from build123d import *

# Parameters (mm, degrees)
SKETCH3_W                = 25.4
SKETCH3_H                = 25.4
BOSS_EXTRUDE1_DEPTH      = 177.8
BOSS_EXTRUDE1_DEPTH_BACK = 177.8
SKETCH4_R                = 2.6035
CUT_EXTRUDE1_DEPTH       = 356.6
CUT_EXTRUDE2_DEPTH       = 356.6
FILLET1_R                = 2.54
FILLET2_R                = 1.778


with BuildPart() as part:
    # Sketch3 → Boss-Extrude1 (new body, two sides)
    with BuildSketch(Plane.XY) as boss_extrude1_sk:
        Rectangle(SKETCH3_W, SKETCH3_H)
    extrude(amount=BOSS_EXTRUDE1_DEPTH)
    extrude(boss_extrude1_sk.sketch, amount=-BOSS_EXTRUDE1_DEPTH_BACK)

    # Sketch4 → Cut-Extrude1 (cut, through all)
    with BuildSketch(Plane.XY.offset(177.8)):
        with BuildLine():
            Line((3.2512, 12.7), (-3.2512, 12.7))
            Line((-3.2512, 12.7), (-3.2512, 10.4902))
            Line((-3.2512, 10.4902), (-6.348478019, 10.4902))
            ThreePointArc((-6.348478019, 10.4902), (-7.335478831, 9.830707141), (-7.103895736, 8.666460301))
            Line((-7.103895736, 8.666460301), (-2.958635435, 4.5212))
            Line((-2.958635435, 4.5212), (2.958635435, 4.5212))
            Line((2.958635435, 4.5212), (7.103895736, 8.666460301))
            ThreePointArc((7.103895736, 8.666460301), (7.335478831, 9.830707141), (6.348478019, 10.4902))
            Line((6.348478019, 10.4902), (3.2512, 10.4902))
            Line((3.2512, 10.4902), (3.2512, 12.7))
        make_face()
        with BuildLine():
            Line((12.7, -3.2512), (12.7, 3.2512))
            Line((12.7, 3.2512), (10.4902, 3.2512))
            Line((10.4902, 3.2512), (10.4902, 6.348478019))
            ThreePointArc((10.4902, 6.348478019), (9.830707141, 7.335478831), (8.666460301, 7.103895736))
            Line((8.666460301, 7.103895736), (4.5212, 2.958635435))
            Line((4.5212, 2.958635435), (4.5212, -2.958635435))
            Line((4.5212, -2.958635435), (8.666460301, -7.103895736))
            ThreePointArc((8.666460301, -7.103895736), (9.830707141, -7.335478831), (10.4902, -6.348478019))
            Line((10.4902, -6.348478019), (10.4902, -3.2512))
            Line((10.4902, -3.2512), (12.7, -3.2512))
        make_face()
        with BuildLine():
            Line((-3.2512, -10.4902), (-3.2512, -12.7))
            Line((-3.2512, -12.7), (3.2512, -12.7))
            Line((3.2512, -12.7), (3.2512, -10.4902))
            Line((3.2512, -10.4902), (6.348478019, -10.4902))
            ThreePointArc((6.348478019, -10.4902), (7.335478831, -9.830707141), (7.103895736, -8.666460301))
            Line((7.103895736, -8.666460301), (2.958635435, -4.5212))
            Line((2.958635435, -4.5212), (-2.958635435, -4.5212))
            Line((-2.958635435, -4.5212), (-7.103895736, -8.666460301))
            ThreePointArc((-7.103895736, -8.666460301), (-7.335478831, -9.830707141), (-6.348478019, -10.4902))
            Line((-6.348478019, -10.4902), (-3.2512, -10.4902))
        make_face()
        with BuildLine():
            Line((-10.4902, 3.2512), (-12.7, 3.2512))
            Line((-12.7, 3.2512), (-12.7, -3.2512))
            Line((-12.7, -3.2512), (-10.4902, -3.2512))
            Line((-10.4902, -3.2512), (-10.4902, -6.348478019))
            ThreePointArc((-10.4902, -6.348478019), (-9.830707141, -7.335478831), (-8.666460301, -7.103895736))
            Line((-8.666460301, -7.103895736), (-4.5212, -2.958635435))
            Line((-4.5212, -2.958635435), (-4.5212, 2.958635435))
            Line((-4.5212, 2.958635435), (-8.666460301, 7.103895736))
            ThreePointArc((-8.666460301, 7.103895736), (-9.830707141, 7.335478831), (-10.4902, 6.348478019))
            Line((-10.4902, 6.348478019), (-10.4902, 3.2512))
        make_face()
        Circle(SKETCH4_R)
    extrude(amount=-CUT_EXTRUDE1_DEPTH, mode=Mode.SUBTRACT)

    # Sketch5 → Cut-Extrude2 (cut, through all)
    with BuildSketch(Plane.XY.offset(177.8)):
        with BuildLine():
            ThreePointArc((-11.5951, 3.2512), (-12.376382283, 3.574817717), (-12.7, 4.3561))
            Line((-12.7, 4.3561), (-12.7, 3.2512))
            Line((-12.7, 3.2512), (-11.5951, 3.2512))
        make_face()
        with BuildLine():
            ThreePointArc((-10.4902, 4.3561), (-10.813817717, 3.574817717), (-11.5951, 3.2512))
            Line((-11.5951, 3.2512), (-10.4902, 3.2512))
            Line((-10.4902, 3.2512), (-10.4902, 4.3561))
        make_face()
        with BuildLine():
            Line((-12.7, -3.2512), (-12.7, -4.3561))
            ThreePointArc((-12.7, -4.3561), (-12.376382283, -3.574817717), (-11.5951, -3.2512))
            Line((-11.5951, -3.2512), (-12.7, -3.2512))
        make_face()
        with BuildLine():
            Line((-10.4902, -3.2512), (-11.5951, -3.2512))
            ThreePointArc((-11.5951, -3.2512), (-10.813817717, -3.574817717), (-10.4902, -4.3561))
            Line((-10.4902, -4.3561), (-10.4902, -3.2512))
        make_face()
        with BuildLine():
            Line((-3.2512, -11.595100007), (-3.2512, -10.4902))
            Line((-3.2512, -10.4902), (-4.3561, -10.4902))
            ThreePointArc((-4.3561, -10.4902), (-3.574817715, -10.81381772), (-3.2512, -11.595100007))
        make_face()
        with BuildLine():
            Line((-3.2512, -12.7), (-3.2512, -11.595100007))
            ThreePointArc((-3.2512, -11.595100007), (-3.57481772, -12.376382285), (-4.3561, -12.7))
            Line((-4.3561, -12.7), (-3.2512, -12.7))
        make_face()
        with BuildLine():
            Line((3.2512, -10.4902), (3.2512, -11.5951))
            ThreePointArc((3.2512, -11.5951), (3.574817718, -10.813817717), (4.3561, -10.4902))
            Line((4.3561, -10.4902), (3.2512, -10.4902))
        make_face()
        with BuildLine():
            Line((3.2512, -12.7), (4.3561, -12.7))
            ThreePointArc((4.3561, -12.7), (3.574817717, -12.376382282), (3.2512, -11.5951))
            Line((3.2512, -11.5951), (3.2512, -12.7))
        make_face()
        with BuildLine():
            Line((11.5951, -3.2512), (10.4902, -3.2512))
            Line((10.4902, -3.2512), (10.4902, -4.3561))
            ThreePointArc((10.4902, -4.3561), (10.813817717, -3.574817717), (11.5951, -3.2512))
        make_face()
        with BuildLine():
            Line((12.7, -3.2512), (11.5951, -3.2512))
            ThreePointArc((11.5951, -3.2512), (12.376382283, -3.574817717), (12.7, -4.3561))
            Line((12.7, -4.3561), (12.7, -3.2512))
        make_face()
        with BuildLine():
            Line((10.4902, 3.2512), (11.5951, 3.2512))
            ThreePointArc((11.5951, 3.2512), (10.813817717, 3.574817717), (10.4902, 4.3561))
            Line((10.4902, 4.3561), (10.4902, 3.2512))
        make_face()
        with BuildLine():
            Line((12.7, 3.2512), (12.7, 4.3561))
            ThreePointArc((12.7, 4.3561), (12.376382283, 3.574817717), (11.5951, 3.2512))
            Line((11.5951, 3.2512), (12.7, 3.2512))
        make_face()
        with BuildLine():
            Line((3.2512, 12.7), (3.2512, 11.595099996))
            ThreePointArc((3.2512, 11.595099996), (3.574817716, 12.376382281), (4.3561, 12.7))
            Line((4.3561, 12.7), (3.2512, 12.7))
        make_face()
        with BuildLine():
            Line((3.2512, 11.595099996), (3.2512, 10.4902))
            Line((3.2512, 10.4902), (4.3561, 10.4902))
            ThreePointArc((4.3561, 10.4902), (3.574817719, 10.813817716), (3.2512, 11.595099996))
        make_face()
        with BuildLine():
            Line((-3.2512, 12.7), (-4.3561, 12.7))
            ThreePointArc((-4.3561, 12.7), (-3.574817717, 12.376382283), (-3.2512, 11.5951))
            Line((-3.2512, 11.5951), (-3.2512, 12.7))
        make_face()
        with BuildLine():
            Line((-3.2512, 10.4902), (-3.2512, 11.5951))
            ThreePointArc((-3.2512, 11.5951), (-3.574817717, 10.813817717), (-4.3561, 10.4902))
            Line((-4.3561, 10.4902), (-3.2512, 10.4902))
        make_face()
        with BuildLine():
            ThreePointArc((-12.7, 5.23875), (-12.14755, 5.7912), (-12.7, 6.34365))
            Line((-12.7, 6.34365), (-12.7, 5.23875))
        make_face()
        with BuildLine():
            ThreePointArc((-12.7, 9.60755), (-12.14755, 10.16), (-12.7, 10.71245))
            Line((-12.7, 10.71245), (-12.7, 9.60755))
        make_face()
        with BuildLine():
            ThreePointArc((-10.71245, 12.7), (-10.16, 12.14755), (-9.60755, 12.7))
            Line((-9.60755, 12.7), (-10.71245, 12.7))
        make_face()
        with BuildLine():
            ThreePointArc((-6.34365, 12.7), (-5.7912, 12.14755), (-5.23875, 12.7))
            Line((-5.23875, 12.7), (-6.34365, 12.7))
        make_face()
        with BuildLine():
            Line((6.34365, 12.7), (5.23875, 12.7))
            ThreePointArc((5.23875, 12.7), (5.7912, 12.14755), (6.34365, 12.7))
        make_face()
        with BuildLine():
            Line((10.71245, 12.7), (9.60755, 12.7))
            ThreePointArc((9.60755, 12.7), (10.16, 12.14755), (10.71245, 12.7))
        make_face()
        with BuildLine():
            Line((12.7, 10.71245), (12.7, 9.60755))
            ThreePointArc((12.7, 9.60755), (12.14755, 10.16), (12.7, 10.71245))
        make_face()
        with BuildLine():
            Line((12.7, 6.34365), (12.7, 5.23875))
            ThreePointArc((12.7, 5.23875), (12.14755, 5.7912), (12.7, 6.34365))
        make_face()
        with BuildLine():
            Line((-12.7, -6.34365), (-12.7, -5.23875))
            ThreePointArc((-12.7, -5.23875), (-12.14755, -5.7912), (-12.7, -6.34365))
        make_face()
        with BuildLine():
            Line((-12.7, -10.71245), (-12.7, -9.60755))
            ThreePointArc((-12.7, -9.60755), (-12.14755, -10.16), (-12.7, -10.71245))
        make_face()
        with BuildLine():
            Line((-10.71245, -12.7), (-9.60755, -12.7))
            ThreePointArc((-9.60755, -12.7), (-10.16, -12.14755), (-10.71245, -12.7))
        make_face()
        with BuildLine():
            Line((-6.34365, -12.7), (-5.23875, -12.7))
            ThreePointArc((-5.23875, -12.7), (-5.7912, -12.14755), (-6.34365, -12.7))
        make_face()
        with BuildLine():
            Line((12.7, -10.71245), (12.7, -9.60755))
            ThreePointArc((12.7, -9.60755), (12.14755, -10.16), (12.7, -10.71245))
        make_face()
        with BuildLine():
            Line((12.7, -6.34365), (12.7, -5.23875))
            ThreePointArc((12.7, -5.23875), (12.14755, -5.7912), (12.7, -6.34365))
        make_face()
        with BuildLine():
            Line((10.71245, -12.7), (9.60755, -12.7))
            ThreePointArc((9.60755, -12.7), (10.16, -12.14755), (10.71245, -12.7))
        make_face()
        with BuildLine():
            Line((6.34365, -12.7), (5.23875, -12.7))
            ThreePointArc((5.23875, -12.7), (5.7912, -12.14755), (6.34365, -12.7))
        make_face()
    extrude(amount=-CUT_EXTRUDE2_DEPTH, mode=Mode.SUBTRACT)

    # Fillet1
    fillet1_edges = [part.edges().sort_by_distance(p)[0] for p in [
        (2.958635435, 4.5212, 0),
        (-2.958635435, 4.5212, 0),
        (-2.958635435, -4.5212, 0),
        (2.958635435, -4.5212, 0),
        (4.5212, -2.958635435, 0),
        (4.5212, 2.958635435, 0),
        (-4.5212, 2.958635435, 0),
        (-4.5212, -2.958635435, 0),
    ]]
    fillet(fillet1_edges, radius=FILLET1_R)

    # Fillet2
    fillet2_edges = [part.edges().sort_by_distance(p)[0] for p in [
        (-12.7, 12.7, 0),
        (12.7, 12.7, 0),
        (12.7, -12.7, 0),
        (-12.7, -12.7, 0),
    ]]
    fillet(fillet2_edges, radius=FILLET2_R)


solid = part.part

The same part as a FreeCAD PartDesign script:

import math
import FreeCAD as App
import Part
import Sketcher
Q = App.Units.Quantity


def edges_at(feature, points):
    """Names of the edges that pass closest to the given points."""
    edges = feature.Shape.Edges
    near = lambda p: min(range(len(edges)), key=lambda i: edges[i].distToShape(Part.Vertex(*p))[0])
    return sorted({f"Edge{near(p) + 1}" for p in points})


def add_polygon(sketch, points):
    """Adds a closed chain of lines whose ends are joined by coincident constraints."""
    first, n = sketch.GeometryCount, len(points)
    for a, b in zip(points, points[1:] + points[:1]):
        sketch.addGeometry(Part.LineSegment(App.Vector(*a, 0), App.Vector(*b, 0)), False)
    for i in range(n):
        sketch.addConstraint(Sketcher.Constraint("Coincident", first + i, 2, first + (i + 1) % n, 1))

doc = App.newDocument("Part")
body = doc.addObject("PartDesign::Body", "Body")

# Sketch on XY plane
sketch1 = body.newObject("Sketcher::SketchObject", "Sketch")
sketch1.AttachmentSupport = (doc.getObject("XY_Plane"), [""])
sketch1.MapMode = "FlatFace"
add_polygon(sketch1, [(-13, 13), (-13, -13), (13, -13), (13, 13)])  # lines 0-3
sketch1.addConstraint(Sketcher.Constraint("Vertical", 0))
sketch1.addConstraint(Sketcher.Constraint("Horizontal", 1))
sketch1.addConstraint(Sketcher.Constraint("Vertical", 2))
sketch1.addConstraint(Sketcher.Constraint("Horizontal", 3))
sketch1.addConstraint(Sketcher.Constraint("Symmetric", 0, 2, 2, 2, -1, 1))
sketch1.addConstraint(Sketcher.Constraint("Equal", 3, 0))
sketch1.addConstraint(Sketcher.Constraint("DistanceX", 1, 1, 1, 2, Q("1 in")))
pad1 = body.newObject("PartDesign::Pad", "Pad")
pad1.Profile = sketch1
pad1.Type = "TwoLengths"
pad1.Length = Q("7 in")
pad1.Length2 = Q("7 in")

# Sketch on XY plane
sketch2 = body.newObject("Sketcher::SketchObject", "Sketch001")
sketch2.AttachmentSupport = (doc.getObject("XY_Plane"), [""])
sketch2.MapMode = "FlatFace"
sketch2.AttachmentOffset = App.Placement(App.Vector(0, 0, 7 * 25.4), App.Rotation())
sketch2.addGeometry(Part.LineSegment(App.Vector(3.3, 12.7, 0), App.Vector(-3.3, 12.7, 0)), False)
sketch2.addGeometry(Part.LineSegment(App.Vector(-3.3, 12.7, 0), App.Vector(-3.3, 10.5, 0)), False)
sketch2.addGeometry(Part.LineSegment(App.Vector(-3.3, 10.5, 0), App.Vector(-6.3, 10.5, 0)), False)
sketch2.addGeometry(Part.ArcOfCircle(Part.Circle(App.Vector(-6.3, 9.4, 0), App.Vector(0, 0, 1), 1.1), math.radians(90), math.radians(225)), False)
sketch2.addGeometry(Part.LineSegment(App.Vector(-7.1, 8.7, 0), App.Vector(-3, 4.5, 0)), False)
sketch2.addGeometry(Part.LineSegment(App.Vector(-3, 4.5, 0), App.Vector(3, 4.5, 0)), False)
sketch2.addGeometry(Part.LineSegment(App.Vector(3, 4.5, 0), App.Vector(7.1, 8.7, 0)), False)
sketch2.addGeometry(Part.ArcOfCircle(Part.Circle(App.Vector(6.3, 9.4, 0), App.Vector(0, 0, 1), 1.1), math.radians(-45), math.radians(90)), False)
sketch2.addGeometry(Part.LineSegment(App.Vector(6.3, 10.5, 0), App.Vector(3.3, 10.5, 0)), False)
sketch2.addGeometry(Part.LineSegment(App.Vector(3.3, 10.5, 0), App.Vector(3.3, 12.7, 0)), False)
sketch2.addGeometry(Part.LineSegment(App.Vector(12.7, -3.3, 0), App.Vector(12.7, 3.3, 0)), False)
sketch2.addGeometry(Part.LineSegment(App.Vector(12.7, 3.3, 0), App.Vector(10.5, 3.3, 0)), False)
sketch2.addGeometry(Part.LineSegment(App.Vector(10.5, 3.3, 0), App.Vector(10.5, 6.3, 0)), False)
sketch2.addGeometry(Part.ArcOfCircle(Part.Circle(App.Vector(9.4, 6.3, 0), App.Vector(0, 0, 1), 1.1), math.radians(0), math.radians(135)), False)
sketch2.addGeometry(Part.LineSegment(App.Vector(8.7, 7.1, 0), App.Vector(4.5, 3, 0)), False)
sketch2.addGeometry(Part.LineSegment(App.Vector(4.5, 3, 0), App.Vector(4.5, -3, 0)), False)
sketch2.addGeometry(Part.LineSegment(App.Vector(4.5, -3, 0), App.Vector(8.7, -7.1, 0)), False)
sketch2.addGeometry(Part.ArcOfCircle(Part.Circle(App.Vector(9.4, -6.3, 0), App.Vector(0, 0, 1), 1.1), math.radians(-135), math.radians(0)), False)
sketch2.addGeometry(Part.LineSegment(App.Vector(10.5, -6.3, 0), App.Vector(10.5, -3.3, 0)), False)
sketch2.addGeometry(Part.LineSegment(App.Vector(10.5, -3.3, 0), App.Vector(12.7, -3.3, 0)), False)
sketch2.addGeometry(Part.LineSegment(App.Vector(-3.3, -10.5, 0), App.Vector(-3.3, -12.7, 0)), False)
sketch2.addGeometry(Part.LineSegment(App.Vector(-3.3, -12.7, 0), App.Vector(3.3, -12.7, 0)), False)
sketch2.addGeometry(Part.LineSegment(App.Vector(3.3, -12.7, 0), App.Vector(3.3, -10.5, 0)), False)
sketch2.addGeometry(Part.LineSegment(App.Vector(3.3, -10.5, 0), App.Vector(6.3, -10.5, 0)), False)
sketch2.addGeometry(Part.ArcOfCircle(Part.Circle(App.Vector(6.3, -9.4, 0), App.Vector(0, 0, 1), 1.1), math.radians(-90), math.radians(45)), False)
sketch2.addGeometry(Part.LineSegment(App.Vector(7.1, -8.7, 0), App.Vector(3, -4.5, 0)), False)
sketch2.addGeometry(Part.LineSegment(App.Vector(3, -4.5, 0), App.Vector(-3, -4.5, 0)), False)
sketch2.addGeometry(Part.LineSegment(App.Vector(-3, -4.5, 0), App.Vector(-7.1, -8.7, 0)), False)
sketch2.addGeometry(Part.ArcOfCircle(Part.Circle(App.Vector(-6.3, -9.4, 0), App.Vector(0, 0, 1), 1.1), math.radians(135), math.radians(270)), False)
sketch2.addGeometry(Part.LineSegment(App.Vector(-6.3, -10.5, 0), App.Vector(-3.3, -10.5, 0)), False)
sketch2.addGeometry(Part.LineSegment(App.Vector(-10.5, 3.3, 0), App.Vector(-12.7, 3.3, 0)), False)
sketch2.addGeometry(Part.LineSegment(App.Vector(-12.7, 3.3, 0), App.Vector(-12.7, -3.3, 0)), False)
sketch2.addGeometry(Part.LineSegment(App.Vector(-12.7, -3.3, 0), App.Vector(-10.5, -3.3, 0)), False)
sketch2.addGeometry(Part.LineSegment(App.Vector(-10.5, -3.3, 0), App.Vector(-10.5, -6.3, 0)), False)
sketch2.addGeometry(Part.ArcOfCircle(Part.Circle(App.Vector(-9.4, -6.3, 0), App.Vector(0, 0, 1), 1.1), math.radians(-180), math.radians(-45)), False)
sketch2.addGeometry(Part.LineSegment(App.Vector(-8.7, -7.1, 0), App.Vector(-4.5, -3, 0)), False)
sketch2.addGeometry(Part.LineSegment(App.Vector(-4.5, -3, 0), App.Vector(-4.5, 3, 0)), False)
sketch2.addGeometry(Part.LineSegment(App.Vector(-4.5, 3, 0), App.Vector(-8.7, 7.1, 0)), False)
sketch2.addGeometry(Part.ArcOfCircle(Part.Circle(App.Vector(-9.4, 6.3, 0), App.Vector(0, 0, 1), 1.1), math.radians(45), math.radians(180)), False)
sketch2.addGeometry(Part.LineSegment(App.Vector(-10.5, 6.3, 0), App.Vector(-10.5, 3.3, 0)), False)
sketch2.addGeometry(Part.Circle(App.Vector(0, 0, 0), App.Vector(0, 0, 1), 2.6), False)
sketch2.addConstraint(Sketcher.Constraint("Coincident", 0, 2, 1, 1))
sketch2.addConstraint(Sketcher.Constraint("Coincident", 1, 2, 2, 1))
sketch2.addConstraint(Sketcher.Constraint("Tangent", 2, 2, 3, 1))
sketch2.addConstraint(Sketcher.Constraint("Tangent", 3, 2, 4, 1))
sketch2.addConstraint(Sketcher.Constraint("Coincident", 4, 2, 5, 1))
sketch2.addConstraint(Sketcher.Constraint("Coincident", 5, 2, 6, 1))
sketch2.addConstraint(Sketcher.Constraint("Tangent", 6, 2, 7, 1))
sketch2.addConstraint(Sketcher.Constraint("Tangent", 7, 2, 8, 1))
sketch2.addConstraint(Sketcher.Constraint("Coincident", 8, 2, 9, 1))
sketch2.addConstraint(Sketcher.Constraint("Coincident", 9, 2, 0, 1))
sketch2.addConstraint(Sketcher.Constraint("Coincident", 10, 2, 11, 1))
sketch2.addConstraint(Sketcher.Constraint("Coincident", 11, 2, 12, 1))
sketch2.addConstraint(Sketcher.Constraint("Tangent", 12, 2, 13, 1))
sketch2.addConstraint(Sketcher.Constraint("Tangent", 13, 2, 14, 1))
sketch2.addConstraint(Sketcher.Constraint("Coincident", 14, 2, 15, 1))
sketch2.addConstraint(Sketcher.Constraint("Coincident", 15, 2, 16, 1))
sketch2.addConstraint(Sketcher.Constraint("Tangent", 16, 2, 17, 1))
sketch2.addConstraint(Sketcher.Constraint("Tangent", 17, 2, 18, 1))
sketch2.addConstraint(Sketcher.Constraint("Coincident", 18, 2, 19, 1))
sketch2.addConstraint(Sketcher.Constraint("Coincident", 19, 2, 10, 1))
sketch2.addConstraint(Sketcher.Constraint("Coincident", 20, 2, 21, 1))
sketch2.addConstraint(Sketcher.Constraint("Coincident", 21, 2, 22, 1))
sketch2.addConstraint(Sketcher.Constraint("Coincident", 22, 2, 23, 1))
sketch2.addConstraint(Sketcher.Constraint("Tangent", 23, 2, 24, 1))
sketch2.addConstraint(Sketcher.Constraint("Tangent", 24, 2, 25, 1))
sketch2.addConstraint(Sketcher.Constraint("Coincident", 25, 2, 26, 1))
sketch2.addConstraint(Sketcher.Constraint("Coincident", 26, 2, 27, 1))
sketch2.addConstraint(Sketcher.Constraint("Tangent", 27, 2, 28, 1))
sketch2.addConstraint(Sketcher.Constraint("Tangent", 28, 2, 29, 1))
sketch2.addConstraint(Sketcher.Constraint("Coincident", 29, 2, 20, 1))
sketch2.addConstraint(Sketcher.Constraint("Coincident", 30, 2, 31, 1))
sketch2.addConstraint(Sketcher.Constraint("Coincident", 31, 2, 32, 1))
sketch2.addConstraint(Sketcher.Constraint("Coincident", 32, 2, 33, 1))
sketch2.addConstraint(Sketcher.Constraint("Tangent", 33, 2, 34, 1))
sketch2.addConstraint(Sketcher.Constraint("Tangent", 34, 2, 35, 1))
sketch2.addConstraint(Sketcher.Constraint("Coincident", 35, 2, 36, 1))
sketch2.addConstraint(Sketcher.Constraint("Coincident", 36, 2, 37, 1))
sketch2.addConstraint(Sketcher.Constraint("Tangent", 37, 2, 38, 1))
sketch2.addConstraint(Sketcher.Constraint("Tangent", 38, 2, 39, 1))
sketch2.addConstraint(Sketcher.Constraint("Coincident", 39, 2, 30, 1))
sketch2.addConstraint(Sketcher.Constraint("Horizontal", 0))
sketch2.addConstraint(Sketcher.Constraint("Vertical", 1))
sketch2.addConstraint(Sketcher.Constraint("Horizontal", 2))
sketch2.addConstraint(Sketcher.Constraint("Horizontal", 5))
sketch2.addConstraint(Sketcher.Constraint("Horizontal", 8))
sketch2.addConstraint(Sketcher.Constraint("Vertical", 9))
sketch2.addConstraint(Sketcher.Constraint("Vertical", 10))
sketch2.addConstraint(Sketcher.Constraint("Horizontal", 11))
sketch2.addConstraint(Sketcher.Constraint("Vertical", 12))
sketch2.addConstraint(Sketcher.Constraint("Vertical", 15))
sketch2.addConstraint(Sketcher.Constraint("Vertical", 18))
sketch2.addConstraint(Sketcher.Constraint("Horizontal", 19))
sketch2.addConstraint(Sketcher.Constraint("Vertical", 20))
sketch2.addConstraint(Sketcher.Constraint("Horizontal", 21))
sketch2.addConstraint(Sketcher.Constraint("Vertical", 22))
sketch2.addConstraint(Sketcher.Constraint("Horizontal", 23))
sketch2.addConstraint(Sketcher.Constraint("Horizontal", 26))
sketch2.addConstraint(Sketcher.Constraint("Horizontal", 29))
sketch2.addConstraint(Sketcher.Constraint("Horizontal", 30))
sketch2.addConstraint(Sketcher.Constraint("Vertical", 31))
sketch2.addConstraint(Sketcher.Constraint("Horizontal", 32))
sketch2.addConstraint(Sketcher.Constraint("Vertical", 33))
sketch2.addConstraint(Sketcher.Constraint("Vertical", 36))
sketch2.addConstraint(Sketcher.Constraint("Vertical", 39))
sketch2.addConstraint(Sketcher.Constraint("Coincident", 40, 3, -1, 1))
sketch2.addConstraint(Sketcher.Constraint("Equal", 3, 7))
sketch2.addConstraint(Sketcher.Constraint("Equal", 7, 13))
sketch2.addConstraint(Sketcher.Constraint("Equal", 13, 17))
sketch2.addConstraint(Sketcher.Constraint("Equal", 17, 24))
sketch2.addConstraint(Sketcher.Constraint("Equal", 24, 28))
sketch2.addConstraint(Sketcher.Constraint("Equal", 28, 34))
sketch2.addConstraint(Sketcher.Constraint("Equal", 34, 38))
sketch2.addConstraint(Sketcher.Constraint("Symmetric", 3, 3, 24, 3, -1, 1))
sketch2.addConstraint(Sketcher.Constraint("Symmetric", 7, 3, 28, 3, -1, 1))
sketch2.addConstraint(Sketcher.Constraint("Symmetric", 13, 3, 34, 3, -1, 1))
sketch2.addConstraint(Sketcher.Constraint("Symmetric", 17, 3, 38, 3, -1, 1))
sketch2.addConstraint(Sketcher.Constraint("Symmetric", 9, 2, 20, 2, -1, 1))
sketch2.addConstraint(Sketcher.Constraint("Symmetric", 4, 2, 25, 2, -1, 1))
sketch2.addConstraint(Sketcher.Constraint("Symmetric", 19, 2, 30, 2, -1, 1))
sketch2.addConstraint(Sketcher.Constraint("Symmetric", 14, 2, 35, 2, -1, 1))
sketch2.addConstraint(Sketcher.Constraint("Symmetric", 3, 3, 7, 3, -2))
sketch2.addConstraint(Sketcher.Constraint("Symmetric", 17, 3, 34, 3, -2))
sketch2.addConstraint(Sketcher.Constraint("Perpendicular", 4, 6))
sketch2.addConstraint(Sketcher.Constraint("Parallel", 6, 14))
sketch2.addConstraint(Sketcher.Constraint("Perpendicular", 14, 16))
sketch2.addConstraint(Sketcher.Constraint("Perpendicular", 25, 27))
sketch2.addConstraint(Sketcher.Constraint("Perpendicular", 35, 37))
sketch2.addConstraint(Sketcher.Constraint("Horizontal", 3, 2, 6, 2))
sketch2.addConstraint(Sketcher.Constraint("Horizontal", 11, 2, 30, 2))
sketch2.addConstraint(Sketcher.Constraint("Horizontal", 19, 2, 31, 2))
sketch2.addConstraint(Sketcher.Constraint("Vertical", 1, 2, 20, 2))
sketch2.addConstraint(Sketcher.Constraint("Vertical", 9, 2, 21, 2))
sketch2.addConstraint(Sketcher.Constraint("Equal", 32, 1))
sketch2.addConstraint(Sketcher.Constraint("Equal", 21, 10))
sketch2.addConstraint(Sketcher.Constraint("Equal", 29, 12))
sketch2.addConstraint(Sketcher.Constraint("Equal", 26, 15))
sketch2.addConstraint(Sketcher.Constraint("Diameter", 40, Q("0.205 in")))
sketch2.addConstraint(Sketcher.Constraint("DistanceY", -1, 1, 0, 2, Q("0.5 in")))
sketch2.addConstraint(Sketcher.Constraint("DistanceX", -1, 1, 10, 2, Q("0.5 in")))
sketch2.addConstraint(Sketcher.Constraint("DistanceX", 0, 2, 0, 1, Q("0.256 in")))
sketch2.addConstraint(Sketcher.Constraint("DistanceX", 11, 2, 11, 1, Q("0.087 in")))
sketch2.addConstraint(Sketcher.Constraint("DistanceY", 10, 2, 5, 2, Q("0.05 in")))
sketch2.addConstraint(Sketcher.Constraint("Radius", 3, 1.068322))
sketch2.addConstraint(Sketcher.Constraint("DistanceX", 7, 3, 13, 3, Q("0.121 in")))
pocket1 = body.newObject("PartDesign::Pocket", "Pocket")
pocket1.Profile = sketch2
pocket1.Type = "ThroughAll"

# Sketch on XY plane
sketch3 = body.newObject("Sketcher::SketchObject", "Sketch002")
sketch3.AttachmentSupport = (doc.getObject("XY_Plane"), [""])
sketch3.MapMode = "FlatFace"
sketch3.AttachmentOffset = App.Placement(App.Vector(0, 0, 7 * 25.4), App.Rotation())
sketch3.addGeometry(Part.ArcOfCircle(Part.Circle(App.Vector(-11.6, 4.4, 0), App.Vector(0, 0, 1), 1.1), math.radians(180), math.radians(270)), False)
sketch3.addGeometry(Part.LineSegment(App.Vector(-12.7, 4.4, 0), App.Vector(-12.7, 3.3, 0)), False)
sketch3.addGeometry(Part.LineSegment(App.Vector(-12.7, 3.3, 0), App.Vector(-11.6, 3.3, 0)), False)
sketch3.addGeometry(Part.ArcOfCircle(Part.Circle(App.Vector(-11.6, 4.4, 0), App.Vector(0, 0, 1), 1.1), math.radians(-90), math.radians(0)), False)
sketch3.addGeometry(Part.LineSegment(App.Vector(-11.6, 3.3, 0), App.Vector(-10.5, 3.3, 0)), False)
sketch3.addGeometry(Part.LineSegment(App.Vector(-10.5, 3.3, 0), App.Vector(-10.5, 4.4, 0)), False)
sketch3.addGeometry(Part.LineSegment(App.Vector(-12.7, -3.3, 0), App.Vector(-12.7, -4.4, 0)), False)
sketch3.addGeometry(Part.ArcOfCircle(Part.Circle(App.Vector(-11.6, -4.4, 0), App.Vector(0, 0, 1), 1.1), math.radians(90), math.radians(180)), False)
sketch3.addGeometry(Part.LineSegment(App.Vector(-11.6, -3.3, 0), App.Vector(-12.7, -3.3, 0)), False)
sketch3.addGeometry(Part.LineSegment(App.Vector(-10.5, -3.3, 0), App.Vector(-11.6, -3.3, 0)), False)
sketch3.addGeometry(Part.ArcOfCircle(Part.Circle(App.Vector(-11.6, -4.4, 0), App.Vector(0, 0, 1), 1.1), math.radians(0), math.radians(90)), False)
sketch3.addGeometry(Part.LineSegment(App.Vector(-10.5, -4.4, 0), App.Vector(-10.5, -3.3, 0)), False)
sketch3.addGeometry(Part.LineSegment(App.Vector(-3.3, -11.6, 0), App.Vector(-3.3, -10.5, 0)), False)
sketch3.addGeometry(Part.LineSegment(App.Vector(-3.3, -10.5, 0), App.Vector(-4.4, -10.5, 0)), False)
sketch3.addGeometry(Part.ArcOfCircle(Part.Circle(App.Vector(-4.4, -11.6, 0), App.Vector(0, 0, 1), 1.1), math.radians(0), math.radians(90)), False)
sketch3.addGeometry(Part.LineSegment(App.Vector(-3.3, -12.7, 0), App.Vector(-3.3, -11.6, 0)), False)
sketch3.addGeometry(Part.ArcOfCircle(Part.Circle(App.Vector(-4.4, -11.6, 0), App.Vector(0, 0, 1), 1.1), math.radians(-90), math.radians(0)), False)
sketch3.addGeometry(Part.LineSegment(App.Vector(-4.4, -12.7, 0), App.Vector(-3.3, -12.7, 0)), False)
sketch3.addGeometry(Part.LineSegment(App.Vector(3.3, -10.5, 0), App.Vector(3.3, -11.6, 0)), False)
sketch3.addGeometry(Part.ArcOfCircle(Part.Circle(App.Vector(4.4, -11.6, 0), App.Vector(0, 0, 1), 1.1), math.radians(90), math.radians(180)), False)
sketch3.addGeometry(Part.LineSegment(App.Vector(4.4, -10.5, 0), App.Vector(3.3, -10.5, 0)), False)
sketch3.addGeometry(Part.LineSegment(App.Vector(3.3, -12.7, 0), App.Vector(4.4, -12.7, 0)), False)
sketch3.addGeometry(Part.ArcOfCircle(Part.Circle(App.Vector(4.4, -11.6, 0), App.Vector(0, 0, 1), 1.1), math.radians(180), math.radians(270)), False)
sketch3.addGeometry(Part.LineSegment(App.Vector(3.3, -11.6, 0), App.Vector(3.3, -12.7, 0)), False)
sketch3.addGeometry(Part.LineSegment(App.Vector(11.6, -3.3, 0), App.Vector(10.5, -3.3, 0)), False)
sketch3.addGeometry(Part.LineSegment(App.Vector(10.5, -3.3, 0), App.Vector(10.5, -4.4, 0)), False)
sketch3.addGeometry(Part.ArcOfCircle(Part.Circle(App.Vector(11.6, -4.4, 0), App.Vector(0, 0, 1), 1.1), math.radians(90), math.radians(180)), False)
sketch3.addGeometry(Part.LineSegment(App.Vector(12.7, -3.3, 0), App.Vector(11.6, -3.3, 0)), False)
sketch3.addGeometry(Part.ArcOfCircle(Part.Circle(App.Vector(11.6, -4.4, 0), App.Vector(0, 0, 1), 1.1), math.radians(0), math.radians(90)), False)
sketch3.addGeometry(Part.LineSegment(App.Vector(12.7, -4.4, 0), App.Vector(12.7, -3.3, 0)), False)
sketch3.addGeometry(Part.LineSegment(App.Vector(10.5, 3.3, 0), App.Vector(11.6, 3.3, 0)), False)
sketch3.addGeometry(Part.ArcOfCircle(Part.Circle(App.Vector(11.6, 4.4, 0), App.Vector(0, 0, 1), 1.1), math.radians(180), math.radians(270)), False)
sketch3.addGeometry(Part.LineSegment(App.Vector(10.5, 4.4, 0), App.Vector(10.5, 3.3, 0)), False)
sketch3.addGeometry(Part.LineSegment(App.Vector(12.7, 3.3, 0), App.Vector(12.7, 4.4, 0)), False)
sketch3.addGeometry(Part.ArcOfCircle(Part.Circle(App.Vector(11.6, 4.4, 0), App.Vector(0, 0, 1), 1.1), math.radians(-90), math.radians(0)), False)
sketch3.addGeometry(Part.LineSegment(App.Vector(11.6, 3.3, 0), App.Vector(12.7, 3.3, 0)), False)
sketch3.addGeometry(Part.LineSegment(App.Vector(3.3, 12.7, 0), App.Vector(3.3, 11.6, 0)), False)
sketch3.addGeometry(Part.ArcOfCircle(Part.Circle(App.Vector(4.4, 11.6, 0), App.Vector(0, 0, 1), 1.1), math.radians(90), math.radians(180)), False)
sketch3.addGeometry(Part.LineSegment(App.Vector(4.4, 12.7, 0), App.Vector(3.3, 12.7, 0)), False)
sketch3.addGeometry(Part.LineSegment(App.Vector(3.3, 11.6, 0), App.Vector(3.3, 10.5, 0)), False)
sketch3.addGeometry(Part.LineSegment(App.Vector(3.3, 10.5, 0), App.Vector(4.4, 10.5, 0)), False)
sketch3.addGeometry(Part.ArcOfCircle(Part.Circle(App.Vector(4.4, 11.6, 0), App.Vector(0, 0, 1), 1.1), math.radians(-180), math.radians(-90)), False)
sketch3.addGeometry(Part.LineSegment(App.Vector(-3.3, 12.7, 0), App.Vector(-4.4, 12.7, 0)), False)
sketch3.addGeometry(Part.ArcOfCircle(Part.Circle(App.Vector(-4.4, 11.6, 0), App.Vector(0, 0, 1), 1.1), math.radians(0), math.radians(90)), False)
sketch3.addGeometry(Part.LineSegment(App.Vector(-3.3, 11.6, 0), App.Vector(-3.3, 12.7, 0)), False)
sketch3.addGeometry(Part.LineSegment(App.Vector(-3.3, 10.5, 0), App.Vector(-3.3, 11.6, 0)), False)
sketch3.addGeometry(Part.ArcOfCircle(Part.Circle(App.Vector(-4.4, 11.6, 0), App.Vector(0, 0, 1), 1.1), math.radians(-90), math.radians(0)), False)
sketch3.addGeometry(Part.LineSegment(App.Vector(-4.4, 10.5, 0), App.Vector(-3.3, 10.5, 0)), False)
sketch3.addGeometry(Part.ArcOfCircle(Part.Circle(App.Vector(-12.7, 5.8, 0), App.Vector(0, 0, 1), 0.6), math.radians(-90), math.radians(90)), False)
sketch3.addGeometry(Part.LineSegment(App.Vector(-12.7, 6.3, 0), App.Vector(-12.7, 5.2, 0)), False)
sketch3.addGeometry(Part.ArcOfCircle(Part.Circle(App.Vector(-12.7, 10.2, 0), App.Vector(0, 0, 1), 0.6), math.radians(-90), math.radians(90)), False)
sketch3.addGeometry(Part.LineSegment(App.Vector(-12.7, 10.7, 0), App.Vector(-12.7, 9.6, 0)), False)
sketch3.addGeometry(Part.ArcOfCircle(Part.Circle(App.Vector(-10.2, 12.7, 0), App.Vector(0, 0, 1), 0.6), math.radians(180), math.radians(360)), False)
sketch3.addGeometry(Part.LineSegment(App.Vector(-9.6, 12.7, 0), App.Vector(-10.7, 12.7, 0)), False)
sketch3.addGeometry(Part.ArcOfCircle(Part.Circle(App.Vector(-5.8, 12.7, 0), App.Vector(0, 0, 1), 0.6), math.radians(180), math.radians(360)), False)
sketch3.addGeometry(Part.LineSegment(App.Vector(-5.2, 12.7, 0), App.Vector(-6.3, 12.7, 0)), False)
sketch3.addGeometry(Part.LineSegment(App.Vector(6.3, 12.7, 0), App.Vector(5.2, 12.7, 0)), False)
sketch3.addGeometry(Part.ArcOfCircle(Part.Circle(App.Vector(5.8, 12.7, 0), App.Vector(0, 0, 1), 0.6), math.radians(180), math.radians(360)), False)
sketch3.addGeometry(Part.LineSegment(App.Vector(10.7, 12.7, 0), App.Vector(9.6, 12.7, 0)), False)
sketch3.addGeometry(Part.ArcOfCircle(Part.Circle(App.Vector(10.2, 12.7, 0), App.Vector(0, 0, 1), 0.6), math.radians(180), math.radians(360)), False)
sketch3.addGeometry(Part.LineSegment(App.Vector(12.7, 9.6, 0), App.Vector(12.7, 10.7, 0)), False)
sketch3.addGeometry(Part.ArcOfCircle(Part.Circle(App.Vector(12.7, 10.2, 0), App.Vector(0, 0, 1), 0.6), math.radians(90), math.radians(270)), False)
sketch3.addGeometry(Part.LineSegment(App.Vector(12.7, 5.2, 0), App.Vector(12.7, 6.3, 0)), False)
sketch3.addGeometry(Part.ArcOfCircle(Part.Circle(App.Vector(12.7, 5.8, 0), App.Vector(0, 0, 1), 0.6), math.radians(90), math.radians(270)), False)
sketch3.addGeometry(Part.LineSegment(App.Vector(-12.7, -5.2, 0), App.Vector(-12.7, -6.3, 0)), False)
sketch3.addGeometry(Part.ArcOfCircle(Part.Circle(App.Vector(-12.7, -5.8, 0), App.Vector(0, 0, 1), 0.6), math.radians(-90), math.radians(90)), False)
sketch3.addGeometry(Part.LineSegment(App.Vector(-12.7, -9.6, 0), App.Vector(-12.7, -10.7, 0)), False)
sketch3.addGeometry(Part.ArcOfCircle(Part.Circle(App.Vector(-12.7, -10.2, 0), App.Vector(0, 0, 1), 0.6), math.radians(-90), math.radians(90)), False)
sketch3.addGeometry(Part.LineSegment(App.Vector(-10.7, -12.7, 0), App.Vector(-9.6, -12.7, 0)), False)
sketch3.addGeometry(Part.ArcOfCircle(Part.Circle(App.Vector(-10.2, -12.7, 0), App.Vector(0, 0, 1), 0.6), math.radians(0), math.radians(180)), False)
sketch3.addGeometry(Part.LineSegment(App.Vector(-6.3, -12.7, 0), App.Vector(-5.2, -12.7, 0)), False)
sketch3.addGeometry(Part.ArcOfCircle(Part.Circle(App.Vector(-5.8, -12.7, 0), App.Vector(0, 0, 1), 0.6), math.radians(0), math.radians(180)), False)
sketch3.addGeometry(Part.LineSegment(App.Vector(12.7, -10.7, 0), App.Vector(12.7, -9.6, 0)), False)
sketch3.addGeometry(Part.ArcOfCircle(Part.Circle(App.Vector(12.7, -10.2, 0), App.Vector(0, 0, 1), 0.6), math.radians(90), math.radians(270)), False)
sketch3.addGeometry(Part.LineSegment(App.Vector(12.7, -6.3, 0), App.Vector(12.7, -5.2, 0)), False)
sketch3.addGeometry(Part.ArcOfCircle(Part.Circle(App.Vector(12.7, -5.8, 0), App.Vector(0, 0, 1), 0.6), math.radians(90), math.radians(270)), False)
sketch3.addGeometry(Part.LineSegment(App.Vector(9.6, -12.7, 0), App.Vector(10.7, -12.7, 0)), False)
sketch3.addGeometry(Part.ArcOfCircle(Part.Circle(App.Vector(10.2, -12.7, 0), App.Vector(0, 0, 1), 0.6), math.radians(0), math.radians(180)), False)
sketch3.addGeometry(Part.LineSegment(App.Vector(5.2, -12.7, 0), App.Vector(6.3, -12.7, 0)), False)
sketch3.addGeometry(Part.ArcOfCircle(Part.Circle(App.Vector(5.8, -12.7, 0), App.Vector(0, 0, 1), 0.6), math.radians(0), math.radians(180)), False)
sketch3.addConstraint(Sketcher.Constraint("Tangent", 0, 1, 1, 1))
sketch3.addConstraint(Sketcher.Constraint("Coincident", 1, 2, 2, 1))
sketch3.addConstraint(Sketcher.Constraint("Tangent", 2, 2, 0, 2))
sketch3.addConstraint(Sketcher.Constraint("Tangent", 3, 1, 4, 1))
sketch3.addConstraint(Sketcher.Constraint("Coincident", 4, 2, 5, 1))
sketch3.addConstraint(Sketcher.Constraint("Tangent", 5, 2, 3, 2))
sketch3.addConstraint(Sketcher.Constraint("Tangent", 6, 2, 7, 2))
sketch3.addConstraint(Sketcher.Constraint("Tangent", 7, 1, 8, 1))
sketch3.addConstraint(Sketcher.Constraint("Coincident", 8, 2, 6, 1))
sketch3.addConstraint(Sketcher.Constraint("Tangent", 9, 2, 10, 2))
sketch3.addConstraint(Sketcher.Constraint("Tangent", 10, 1, 11, 1))
sketch3.addConstraint(Sketcher.Constraint("Coincident", 11, 2, 9, 1))
sketch3.addConstraint(Sketcher.Constraint("Coincident", 12, 2, 13, 1))
sketch3.addConstraint(Sketcher.Constraint("Tangent", 13, 2, 14, 2))
sketch3.addConstraint(Sketcher.Constraint("Tangent", 14, 1, 12, 1))
sketch3.addConstraint(Sketcher.Constraint("Tangent", 15, 2, 16, 2))
sketch3.addConstraint(Sketcher.Constraint("Tangent", 16, 1, 17, 1))
sketch3.addConstraint(Sketcher.Constraint("Coincident", 17, 2, 15, 1))
sketch3.addConstraint(Sketcher.Constraint("Tangent", 18, 2, 19, 2))
sketch3.addConstraint(Sketcher.Constraint("Tangent", 19, 1, 20, 1))
sketch3.addConstraint(Sketcher.Constraint("Coincident", 20, 2, 18, 1))
sketch3.addConstraint(Sketcher.Constraint("Tangent", 21, 2, 22, 2))
sketch3.addConstraint(Sketcher.Constraint("Tangent", 22, 1, 23, 1))
sketch3.addConstraint(Sketcher.Constraint("Coincident", 23, 2, 21, 1))
sketch3.addConstraint(Sketcher.Constraint("Coincident", 24, 2, 25, 1))
sketch3.addConstraint(Sketcher.Constraint("Tangent", 25, 2, 26, 2))
sketch3.addConstraint(Sketcher.Constraint("Tangent", 26, 1, 24, 1))
sketch3.addConstraint(Sketcher.Constraint("Tangent", 27, 2, 28, 2))
sketch3.addConstraint(Sketcher.Constraint("Tangent", 28, 1, 29, 1))
sketch3.addConstraint(Sketcher.Constraint("Coincident", 29, 2, 27, 1))
sketch3.addConstraint(Sketcher.Constraint("Tangent", 30, 2, 31, 2))
sketch3.addConstraint(Sketcher.Constraint("Tangent", 31, 1, 32, 1))
sketch3.addConstraint(Sketcher.Constraint("Coincident", 32, 2, 30, 1))
sketch3.addConstraint(Sketcher.Constraint("Tangent", 33, 2, 34, 2))
sketch3.addConstraint(Sketcher.Constraint("Tangent", 34, 1, 35, 1))
sketch3.addConstraint(Sketcher.Constraint("Coincident", 35, 2, 33, 1))
sketch3.addConstraint(Sketcher.Constraint("Tangent", 36, 2, 37, 2))
sketch3.addConstraint(Sketcher.Constraint("Tangent", 37, 1, 38, 1))
sketch3.addConstraint(Sketcher.Constraint("Coincident", 38, 2, 36, 1))
sketch3.addConstraint(Sketcher.Constraint("Coincident", 39, 2, 40, 1))
sketch3.addConstraint(Sketcher.Constraint("Tangent", 40, 2, 41, 2))
sketch3.addConstraint(Sketcher.Constraint("Tangent", 41, 1, 39, 1))
sketch3.addConstraint(Sketcher.Constraint("Tangent", 42, 2, 43, 2))
sketch3.addConstraint(Sketcher.Constraint("Tangent", 43, 1, 44, 1))
sketch3.addConstraint(Sketcher.Constraint("Coincident", 44, 2, 42, 1))
sketch3.addConstraint(Sketcher.Constraint("Tangent", 45, 2, 46, 2))
sketch3.addConstraint(Sketcher.Constraint("Tangent", 46, 1, 47, 1))
sketch3.addConstraint(Sketcher.Constraint("Coincident", 47, 2, 45, 1))
sketch3.addConstraint(Sketcher.Constraint("Coincident", 48, 1, 49, 2))
sketch3.addConstraint(Sketcher.Constraint("Coincident", 49, 1, 48, 2))
sketch3.addConstraint(Sketcher.Constraint("Coincident", 50, 1, 51, 2))
sketch3.addConstraint(Sketcher.Constraint("Coincident", 51, 1, 50, 2))
sketch3.addConstraint(Sketcher.Constraint("Coincident", 52, 1, 53, 2))
sketch3.addConstraint(Sketcher.Constraint("Coincident", 53, 1, 52, 2))
sketch3.addConstraint(Sketcher.Constraint("Coincident", 54, 1, 55, 2))
sketch3.addConstraint(Sketcher.Constraint("Coincident", 55, 1, 54, 2))
sketch3.addConstraint(Sketcher.Constraint("Coincident", 56, 1, 57, 2))
sketch3.addConstraint(Sketcher.Constraint("Coincident", 57, 1, 56, 2))
sketch3.addConstraint(Sketcher.Constraint("Coincident", 58, 1, 59, 2))
sketch3.addConstraint(Sketcher.Constraint("Coincident", 59, 1, 58, 2))
sketch3.addConstraint(Sketcher.Constraint("Coincident", 60, 1, 61, 2))
sketch3.addConstraint(Sketcher.Constraint("Coincident", 61, 1, 60, 2))
sketch3.addConstraint(Sketcher.Constraint("Coincident", 62, 1, 63, 2))
sketch3.addConstraint(Sketcher.Constraint("Coincident", 63, 1, 62, 2))
sketch3.addConstraint(Sketcher.Constraint("Coincident", 64, 1, 65, 2))
sketch3.addConstraint(Sketcher.Constraint("Coincident", 65, 1, 64, 2))
sketch3.addConstraint(Sketcher.Constraint("Coincident", 66, 1, 67, 2))
sketch3.addConstraint(Sketcher.Constraint("Coincident", 67, 1, 66, 2))
sketch3.addConstraint(Sketcher.Constraint("Coincident", 68, 1, 69, 2))
sketch3.addConstraint(Sketcher.Constraint("Coincident", 69, 1, 68, 2))
sketch3.addConstraint(Sketcher.Constraint("Coincident", 70, 1, 71, 2))
sketch3.addConstraint(Sketcher.Constraint("Coincident", 71, 1, 70, 2))
sketch3.addConstraint(Sketcher.Constraint("Coincident", 72, 1, 73, 2))
sketch3.addConstraint(Sketcher.Constraint("Coincident", 73, 1, 72, 2))
sketch3.addConstraint(Sketcher.Constraint("Coincident", 74, 1, 75, 2))
sketch3.addConstraint(Sketcher.Constraint("Coincident", 75, 1, 74, 2))
sketch3.addConstraint(Sketcher.Constraint("Coincident", 76, 1, 77, 2))
sketch3.addConstraint(Sketcher.Constraint("Coincident", 77, 1, 76, 2))
sketch3.addConstraint(Sketcher.Constraint("Coincident", 78, 1, 79, 2))
sketch3.addConstraint(Sketcher.Constraint("Coincident", 79, 1, 78, 2))
sketch3.addConstraint(Sketcher.Constraint("Vertical", 1))
sketch3.addConstraint(Sketcher.Constraint("Horizontal", 2))
sketch3.addConstraint(Sketcher.Constraint("Horizontal", 4))
sketch3.addConstraint(Sketcher.Constraint("Vertical", 5))
sketch3.addConstraint(Sketcher.Constraint("Vertical", 6))
sketch3.addConstraint(Sketcher.Constraint("Horizontal", 8))
sketch3.addConstraint(Sketcher.Constraint("Horizontal", 9))
sketch3.addConstraint(Sketcher.Constraint("Vertical", 11))
sketch3.addConstraint(Sketcher.Constraint("Vertical", 12))
sketch3.addConstraint(Sketcher.Constraint("Horizontal", 13))
sketch3.addConstraint(Sketcher.Constraint("Vertical", 15))
sketch3.addConstraint(Sketcher.Constraint("Horizontal", 17))
sketch3.addConstraint(Sketcher.Constraint("Vertical", 18))
sketch3.addConstraint(Sketcher.Constraint("Horizontal", 20))
sketch3.addConstraint(Sketcher.Constraint("Horizontal", 21))
sketch3.addConstraint(Sketcher.Constraint("Vertical", 23))
sketch3.addConstraint(Sketcher.Constraint("Horizontal", 24))
sketch3.addConstraint(Sketcher.Constraint("Vertical", 25))
sketch3.addConstraint(Sketcher.Constraint("Horizontal", 27))
sketch3.addConstraint(Sketcher.Constraint("Vertical", 29))
sketch3.addConstraint(Sketcher.Constraint("Horizontal", 30))
sketch3.addConstraint(Sketcher.Constraint("Vertical", 32))
sketch3.addConstraint(Sketcher.Constraint("Vertical", 33))
sketch3.addConstraint(Sketcher.Constraint("Horizontal", 35))
sketch3.addConstraint(Sketcher.Constraint("Vertical", 36))
sketch3.addConstraint(Sketcher.Constraint("Horizontal", 38))
sketch3.addConstraint(Sketcher.Constraint("Vertical", 39))
sketch3.addConstraint(Sketcher.Constraint("Horizontal", 40))
sketch3.addConstraint(Sketcher.Constraint("Horizontal", 42))
sketch3.addConstraint(Sketcher.Constraint("Vertical", 44))
sketch3.addConstraint(Sketcher.Constraint("Vertical", 45))
sketch3.addConstraint(Sketcher.Constraint("Horizontal", 47))
sketch3.addConstraint(Sketcher.Constraint("Vertical", 49))
sketch3.addConstraint(Sketcher.Constraint("Vertical", 51))
sketch3.addConstraint(Sketcher.Constraint("Horizontal", 53))
sketch3.addConstraint(Sketcher.Constraint("Horizontal", 55))
sketch3.addConstraint(Sketcher.Constraint("Horizontal", 56))
sketch3.addConstraint(Sketcher.Constraint("Horizontal", 58))
sketch3.addConstraint(Sketcher.Constraint("Vertical", 60))
sketch3.addConstraint(Sketcher.Constraint("Vertical", 62))
sketch3.addConstraint(Sketcher.Constraint("Vertical", 64))
sketch3.addConstraint(Sketcher.Constraint("Vertical", 66))
sketch3.addConstraint(Sketcher.Constraint("Horizontal", 68))
sketch3.addConstraint(Sketcher.Constraint("Horizontal", 70))
sketch3.addConstraint(Sketcher.Constraint("Vertical", 72))
sketch3.addConstraint(Sketcher.Constraint("Vertical", 74))
sketch3.addConstraint(Sketcher.Constraint("Horizontal", 76))
sketch3.addConstraint(Sketcher.Constraint("Horizontal", 78))
sketch3.addConstraint(Sketcher.Constraint("Coincident", 3, 3, 0, 3))
sketch3.addConstraint(Sketcher.Constraint("Coincident", 10, 3, 7, 3))
sketch3.addConstraint(Sketcher.Constraint("Coincident", 16, 3, 14, 3))
sketch3.addConstraint(Sketcher.Constraint("Coincident", 22, 3, 19, 3))
sketch3.addConstraint(Sketcher.Constraint("Coincident", 28, 3, 26, 3))
sketch3.addConstraint(Sketcher.Constraint("Coincident", 34, 3, 31, 3))
sketch3.addConstraint(Sketcher.Constraint("Coincident", 41, 3, 37, 3))
sketch3.addConstraint(Sketcher.Constraint("Coincident", 46, 3, 43, 3))
sketch3.addConstraint(Sketcher.Constraint("Equal", 0, 3))
sketch3.addConstraint(Sketcher.Constraint("Equal", 3, 7))
sketch3.addConstraint(Sketcher.Constraint("Equal", 7, 10))
sketch3.addConstraint(Sketcher.Constraint("Equal", 10, 14))
sketch3.addConstraint(Sketcher.Constraint("Equal", 14, 16))
sketch3.addConstraint(Sketcher.Constraint("Equal", 16, 19))
sketch3.addConstraint(Sketcher.Constraint("Equal", 19, 22))
sketch3.addConstraint(Sketcher.Constraint("Equal", 22, 26))
sketch3.addConstraint(Sketcher.Constraint("Equal", 26, 28))
sketch3.addConstraint(Sketcher.Constraint("Equal", 28, 31))
sketch3.addConstraint(Sketcher.Constraint("Equal", 31, 34))
sketch3.addConstraint(Sketcher.Constraint("Equal", 34, 37))
sketch3.addConstraint(Sketcher.Constraint("Equal", 37, 41))
sketch3.addConstraint(Sketcher.Constraint("Equal", 41, 43))
sketch3.addConstraint(Sketcher.Constraint("Equal", 43, 46))
sketch3.addConstraint(Sketcher.Constraint("Equal", 48, 50))
sketch3.addConstraint(Sketcher.Constraint("Equal", 50, 52))
sketch3.addConstraint(Sketcher.Constraint("Equal", 52, 54))
sketch3.addConstraint(Sketcher.Constraint("Equal", 54, 57))
sketch3.addConstraint(Sketcher.Constraint("Equal", 57, 59))
sketch3.addConstraint(Sketcher.Constraint("Equal", 59, 61))
sketch3.addConstraint(Sketcher.Constraint("Equal", 61, 63))
sketch3.addConstraint(Sketcher.Constraint("Equal", 63, 65))
sketch3.addConstraint(Sketcher.Constraint("Equal", 65, 67))
sketch3.addConstraint(Sketcher.Constraint("Equal", 67, 69))
sketch3.addConstraint(Sketcher.Constraint("Equal", 69, 71))
sketch3.addConstraint(Sketcher.Constraint("Equal", 71, 73))
sketch3.addConstraint(Sketcher.Constraint("Equal", 73, 75))
sketch3.addConstraint(Sketcher.Constraint("Equal", 75, 77))
sketch3.addConstraint(Sketcher.Constraint("Equal", 77, 79))
sketch3.addConstraint(Sketcher.Constraint("Symmetric", 0, 3, 26, 3, -1, 1))
sketch3.addConstraint(Sketcher.Constraint("Symmetric", 7, 3, 31, 3, -1, 1))
sketch3.addConstraint(Sketcher.Constraint("Symmetric", 14, 3, 37, 3, -1, 1))
sketch3.addConstraint(Sketcher.Constraint("Symmetric", 19, 3, 43, 3, -1, 1))
sketch3.addConstraint(Sketcher.Constraint("Symmetric", 63, 3, 65, 3, -1, 1))
sketch3.addConstraint(Sketcher.Constraint("Symmetric", 61, 3, 67, 3, -1, 1))
sketch3.addConstraint(Sketcher.Constraint("Symmetric", 59, 3, 69, 3, -1, 1))
sketch3.addConstraint(Sketcher.Constraint("Symmetric", 57, 3, 71, 3, -1, 1))
sketch3.addConstraint(Sketcher.Constraint("Symmetric", 50, 3, 73, 3, -1, 1))
sketch3.addConstraint(Sketcher.Constraint("Symmetric", 48, 3, 75, 3, -1, 1))
sketch3.addConstraint(Sketcher.Constraint("Symmetric", 52, 3, 77, 3, -1, 1))
sketch3.addConstraint(Sketcher.Constraint("Symmetric", 54, 3, 79, 3, -1, 1))
sketch3.addConstraint(Sketcher.Constraint("Symmetric", 14, 3, 19, 3, -2))
sketch3.addConstraint(Sketcher.Constraint("Symmetric", 7, 3, 26, 3, -2))
sketch3.addConstraint(Sketcher.Constraint("Symmetric", 54, 3, 57, 3, -2))
sketch3.addConstraint(Sketcher.Constraint("Symmetric", 52, 3, 59, 3, -2))
sketch3.addConstraint(Sketcher.Constraint("Symmetric", 50, 3, 61, 3, -2))
sketch3.addConstraint(Sketcher.Constraint("Symmetric", 48, 3, 63, 3, -2))
sketch3.addConstraint(Sketcher.Constraint("Horizontal", 52, 3, 54, 3))
sketch3.addConstraint(Sketcher.Constraint("Horizontal", 79, 3, 16, 1))
sketch3.addConstraint(Sketcher.Constraint("Horizontal", 44, 2, 52, 1))
sketch3.addConstraint(Sketcher.Constraint("Horizontal", 53, 1, 54, 1))
sketch3.addConstraint(Sketcher.Constraint("Horizontal", 55, 1, 56, 1))
sketch3.addConstraint(Sketcher.Constraint("Horizontal", 57, 1, 58, 1))
sketch3.addConstraint(Sketcher.Constraint("Horizontal", 23, 2, 68, 1))
sketch3.addConstraint(Sketcher.Constraint("Horizontal", 69, 1, 70, 1))
sketch3.addConstraint(Sketcher.Constraint("Horizontal", 71, 1, 76, 1))
sketch3.addConstraint(Sketcher.Constraint("Horizontal", 77, 1, 78, 1))
sketch3.addConstraint(Sketcher.Constraint("Vertical", 48, 3, 50, 3))
sketch3.addConstraint(Sketcher.Constraint("Vertical", 67, 3, 0, 1))
sketch3.addConstraint(Sketcher.Constraint("Vertical", 8, 2, 48, 1))
sketch3.addConstraint(Sketcher.Constraint("Vertical", 49, 1, 50, 1))
sketch3.addConstraint(Sketcher.Constraint("Vertical", 35, 2, 60, 1))
sketch3.addConstraint(Sketcher.Constraint("Vertical", 61, 1, 62, 1))
sketch3.addConstraint(Sketcher.Constraint("Vertical", 51, 1, 64, 1))
sketch3.addConstraint(Sketcher.Constraint("Vertical", 65, 1, 66, 1))
sketch3.addConstraint(Sketcher.Constraint("Vertical", 63, 1, 72, 1))
sketch3.addConstraint(Sketcher.Constraint("Vertical", 73, 1, 74, 1))
sketch3.addConstraint(Sketcher.Constraint("Equal", 47, 53))
sketch3.addConstraint(Sketcher.Constraint("DistanceX", 48, 3, -1, 1, Q("0.5 in")))
sketch3.addConstraint(Sketcher.Constraint("DistanceY", -1, 1, 50, 3, Q("0.4 in")))
sketch3.addConstraint(Sketcher.Constraint("DistanceX", 52, 3, -1, 1, Q("0.4 in")))
sketch3.addConstraint(Sketcher.Constraint("DistanceY", -1, 1, 52, 3, Q("0.5 in")))
sketch3.addConstraint(Sketcher.Constraint("Radius", 0, Q("0.0435 in")))
sketch3.addConstraint(Sketcher.Constraint("DistanceY", -1, 1, 48, 3, Q("0.228 in")))
sketch3.addConstraint(Sketcher.Constraint("DistanceX", 54, 3, -1, 1, Q("0.228 in")))
sketch3.addConstraint(Sketcher.Constraint("DistanceY", -1, 1, 1, 2, Q("0.128 in")))
sketch3.addConstraint(Sketcher.Constraint("DistanceX", 12, 2, -1, 1, Q("0.128 in")))
pocket2 = body.newObject("PartDesign::Pocket", "Pocket001")
pocket2.Profile = sketch3
pocket2.Type = "ThroughAll"
doc.recompute()

fillet = body.newObject("PartDesign::Fillet", "Fillet")
fillet.Base = (pocket2, edges_at(pocket2, [
    (2.959, 4.521, 0),
    (-2.959, 4.521, 0),
    (-2.959, -4.521, 0),
    (2.959, -4.521, 0),
    (4.521, -2.959, 0),
    (4.521, 2.959, 0),
    (-4.521, 2.959, 0),
    (-4.521, -2.959, 0),
]))
fillet.Radius = Q("0.1 in")
doc.recompute()

fillet2 = body.newObject("PartDesign::Fillet", "Fillet001")
fillet2.Base = (fillet, edges_at(fillet, [
    (-12.7, 12.7, 0),
    (12.7, 12.7, 0),
    (12.7, -12.7, 0),
    (-12.7, -12.7, 0),
]))
fillet2.Radius = Q("0.07 in")

doc.recompute()
